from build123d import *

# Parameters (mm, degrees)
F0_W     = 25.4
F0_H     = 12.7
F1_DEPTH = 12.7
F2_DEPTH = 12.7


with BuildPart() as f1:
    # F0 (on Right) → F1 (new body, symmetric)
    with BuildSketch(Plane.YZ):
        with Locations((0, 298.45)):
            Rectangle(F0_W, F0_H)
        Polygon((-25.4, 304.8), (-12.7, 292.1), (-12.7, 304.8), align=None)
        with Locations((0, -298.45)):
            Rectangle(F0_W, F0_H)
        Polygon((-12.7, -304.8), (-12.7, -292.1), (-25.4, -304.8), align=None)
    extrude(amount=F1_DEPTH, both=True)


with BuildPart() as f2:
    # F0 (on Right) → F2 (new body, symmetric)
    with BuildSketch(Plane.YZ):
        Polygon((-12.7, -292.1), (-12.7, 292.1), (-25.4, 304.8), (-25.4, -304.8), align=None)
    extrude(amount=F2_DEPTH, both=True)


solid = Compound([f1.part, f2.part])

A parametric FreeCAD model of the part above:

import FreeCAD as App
import Part
import Sketcher
from FreeCAD import Vector
Q = App.Units.Quantity

doc = App.newDocument("Part")
body = doc.addObject("PartDesign::Body", "Body")
body.AllowCompound = True

# Sketch on YZ plane
sketch1 = doc.addObject("Sketcher::SketchObject", "Sketch")
body.addObject(sketch1)
sketch1.AttachmentSupport = (doc.YZ_Plane, [""])
sketch1.MapMode = "FlatFace"
sketch1.addGeometry([
    Part.LineSegment(Vector(-13, 292, 0), Vector(13, 292, 0)),  # 0
    Part.LineSegment(Vector(13, 292, 0), Vector(13, 305, 0)),  # 1
    Part.LineSegment(Vector(13, 305, 0), Vector(-25, 305, 0)),  # 2
    Part.LineSegment(Vector(-25, 305, 0), Vector(-13, 292, 0)),  # 3
    Part.LineSegment(Vector(13, -305, 0), Vector(13, -292, 0)),  # 4
    Part.LineSegment(Vector(13, -292, 0), Vector(-13, -292, 0)),  # 5
    Part.LineSegment(Vector(-13, -292, 0), Vector(-25, -305, 0)),  # 6
    Part.LineSegment(Vector(-25, -305, 0), Vector(13, -305, 0)),  # 7
], False)
sketch1.addConstraint([
    Sketcher.Constraint("Coincident", 0, 2, 1, 1),
    Sketcher.Constraint("Coincident", 1, 2, 2, 1),
    Sketcher.Constraint("Coincident", 2, 2, 3, 1),
    Sketcher.Constraint("Coincident", 3, 2, 0, 1),
    Sketcher.Constraint("Coincident", 4, 2, 5, 1),
    Sketcher.Constraint("Coincident", 5, 2, 6, 1),
    Sketcher.Constraint("Coincident", 6, 2, 7, 1),
    Sketcher.Constraint("Coincident", 7, 2, 4, 1),
    Sketcher.Constraint("Horizontal", 0),
    Sketcher.Constraint("Vertical", 1),
    Sketcher.Constraint("Horizontal", 2),
    Sketcher.Constraint("Vertical", 4),
    Sketcher.Constraint("Horizontal", 5),
    Sketcher.Constraint("Horizontal", 7),
    Sketcher.Constraint("Symmetric", 3, 2, 4, 2, -1, 1),
    Sketcher.Constraint("Symmetric", 2, 2, 6, 2, -1),
    Sketcher.Constraint("Perpendicular", 3, 6),
    Sketcher.Constraint("Vertical", 1, 2, 4, 2),
    Sketcher.Constraint("Vertical", 3, 2, 5, 2),
    Sketcher.Constraint("DistanceX", 0, 1, 0, 2, Q("1 in")),
    Sketcher.Constraint("DistanceX", 2, 2, 2, 1, Q("1.5 in")),
    Sketcher.Constraint("DistanceY", -1, 1, 1, 2, Q("12 in")),
])
pad1 = doc.addObject("PartDesign::Pad", "Pad")
body.addObject(pad1)
pad1.Profile = sketch1
pad1.Length = Q("1 in")
pad1.Midplane = True
body2 = doc.addObject("PartDesign::Body", "Body001")

# Sketch on YZ plane
sketch2 = doc.addObject("Sketcher::SketchObject", "Sketch001")
body2.addObject(sketch2)
sketch2.AttachmentSupport = (doc.getObject("YZ_Plane001"), [""])
sketch2.MapMode = "FlatFace"
sketch2.addGeometry([
    Part.LineSegment(Vector(-13, -292, 0), Vector(-13, 292, 0)),
    Part.LineSegment(Vector(-13, 292, 0), Vector(-25, 305, 0)),
    Part.LineSegment(Vector(-25, 305, 0), Vector(-25, -305, 0)),
    Part.LineSegment(Vector(-25, -305, 0), Vector(-13, -292, 0)),
], False)
sketch2.addConstraint([
    Sketcher.Constraint("Coincident", 0, 2, 1, 1),
    Sketcher.Constraint("Coincident", 1, 2, 2, 1),
    Sketcher.Constraint("Coincident", 2, 2, 3, 1),
    Sketcher.Constraint("Coincident", 3, 2, 0, 1),
    Sketcher.Constraint("Vertical", 0),
    Sketcher.Constraint("Vertical", 2),
    Sketcher.Constraint("Perpendicular", 1, 3),
    Sketcher.Constraint("Equal", 1, 3),
    Sketcher.Constraint("DistanceY", 0, 1, 0, 2, Q("23 in")),
    Sketcher.Constraint("DistanceY", 2, 2, 2, 1, Q("24 in")),
    Sketcher.Constraint("DistanceX", 1, 2, -1, 1, Q("1 in")),
    Sketcher.Constraint("DistanceY", -1, 1, 1, 2, Q("12 in")),
])
pad2 = doc.addObject("PartDesign::Pad", "Pad001")
body2.addObject(pad2)
pad2.Profile = sketch2
pad2.Length = Q("1 in")
pad2.Midplane = True

doc.recompute()
